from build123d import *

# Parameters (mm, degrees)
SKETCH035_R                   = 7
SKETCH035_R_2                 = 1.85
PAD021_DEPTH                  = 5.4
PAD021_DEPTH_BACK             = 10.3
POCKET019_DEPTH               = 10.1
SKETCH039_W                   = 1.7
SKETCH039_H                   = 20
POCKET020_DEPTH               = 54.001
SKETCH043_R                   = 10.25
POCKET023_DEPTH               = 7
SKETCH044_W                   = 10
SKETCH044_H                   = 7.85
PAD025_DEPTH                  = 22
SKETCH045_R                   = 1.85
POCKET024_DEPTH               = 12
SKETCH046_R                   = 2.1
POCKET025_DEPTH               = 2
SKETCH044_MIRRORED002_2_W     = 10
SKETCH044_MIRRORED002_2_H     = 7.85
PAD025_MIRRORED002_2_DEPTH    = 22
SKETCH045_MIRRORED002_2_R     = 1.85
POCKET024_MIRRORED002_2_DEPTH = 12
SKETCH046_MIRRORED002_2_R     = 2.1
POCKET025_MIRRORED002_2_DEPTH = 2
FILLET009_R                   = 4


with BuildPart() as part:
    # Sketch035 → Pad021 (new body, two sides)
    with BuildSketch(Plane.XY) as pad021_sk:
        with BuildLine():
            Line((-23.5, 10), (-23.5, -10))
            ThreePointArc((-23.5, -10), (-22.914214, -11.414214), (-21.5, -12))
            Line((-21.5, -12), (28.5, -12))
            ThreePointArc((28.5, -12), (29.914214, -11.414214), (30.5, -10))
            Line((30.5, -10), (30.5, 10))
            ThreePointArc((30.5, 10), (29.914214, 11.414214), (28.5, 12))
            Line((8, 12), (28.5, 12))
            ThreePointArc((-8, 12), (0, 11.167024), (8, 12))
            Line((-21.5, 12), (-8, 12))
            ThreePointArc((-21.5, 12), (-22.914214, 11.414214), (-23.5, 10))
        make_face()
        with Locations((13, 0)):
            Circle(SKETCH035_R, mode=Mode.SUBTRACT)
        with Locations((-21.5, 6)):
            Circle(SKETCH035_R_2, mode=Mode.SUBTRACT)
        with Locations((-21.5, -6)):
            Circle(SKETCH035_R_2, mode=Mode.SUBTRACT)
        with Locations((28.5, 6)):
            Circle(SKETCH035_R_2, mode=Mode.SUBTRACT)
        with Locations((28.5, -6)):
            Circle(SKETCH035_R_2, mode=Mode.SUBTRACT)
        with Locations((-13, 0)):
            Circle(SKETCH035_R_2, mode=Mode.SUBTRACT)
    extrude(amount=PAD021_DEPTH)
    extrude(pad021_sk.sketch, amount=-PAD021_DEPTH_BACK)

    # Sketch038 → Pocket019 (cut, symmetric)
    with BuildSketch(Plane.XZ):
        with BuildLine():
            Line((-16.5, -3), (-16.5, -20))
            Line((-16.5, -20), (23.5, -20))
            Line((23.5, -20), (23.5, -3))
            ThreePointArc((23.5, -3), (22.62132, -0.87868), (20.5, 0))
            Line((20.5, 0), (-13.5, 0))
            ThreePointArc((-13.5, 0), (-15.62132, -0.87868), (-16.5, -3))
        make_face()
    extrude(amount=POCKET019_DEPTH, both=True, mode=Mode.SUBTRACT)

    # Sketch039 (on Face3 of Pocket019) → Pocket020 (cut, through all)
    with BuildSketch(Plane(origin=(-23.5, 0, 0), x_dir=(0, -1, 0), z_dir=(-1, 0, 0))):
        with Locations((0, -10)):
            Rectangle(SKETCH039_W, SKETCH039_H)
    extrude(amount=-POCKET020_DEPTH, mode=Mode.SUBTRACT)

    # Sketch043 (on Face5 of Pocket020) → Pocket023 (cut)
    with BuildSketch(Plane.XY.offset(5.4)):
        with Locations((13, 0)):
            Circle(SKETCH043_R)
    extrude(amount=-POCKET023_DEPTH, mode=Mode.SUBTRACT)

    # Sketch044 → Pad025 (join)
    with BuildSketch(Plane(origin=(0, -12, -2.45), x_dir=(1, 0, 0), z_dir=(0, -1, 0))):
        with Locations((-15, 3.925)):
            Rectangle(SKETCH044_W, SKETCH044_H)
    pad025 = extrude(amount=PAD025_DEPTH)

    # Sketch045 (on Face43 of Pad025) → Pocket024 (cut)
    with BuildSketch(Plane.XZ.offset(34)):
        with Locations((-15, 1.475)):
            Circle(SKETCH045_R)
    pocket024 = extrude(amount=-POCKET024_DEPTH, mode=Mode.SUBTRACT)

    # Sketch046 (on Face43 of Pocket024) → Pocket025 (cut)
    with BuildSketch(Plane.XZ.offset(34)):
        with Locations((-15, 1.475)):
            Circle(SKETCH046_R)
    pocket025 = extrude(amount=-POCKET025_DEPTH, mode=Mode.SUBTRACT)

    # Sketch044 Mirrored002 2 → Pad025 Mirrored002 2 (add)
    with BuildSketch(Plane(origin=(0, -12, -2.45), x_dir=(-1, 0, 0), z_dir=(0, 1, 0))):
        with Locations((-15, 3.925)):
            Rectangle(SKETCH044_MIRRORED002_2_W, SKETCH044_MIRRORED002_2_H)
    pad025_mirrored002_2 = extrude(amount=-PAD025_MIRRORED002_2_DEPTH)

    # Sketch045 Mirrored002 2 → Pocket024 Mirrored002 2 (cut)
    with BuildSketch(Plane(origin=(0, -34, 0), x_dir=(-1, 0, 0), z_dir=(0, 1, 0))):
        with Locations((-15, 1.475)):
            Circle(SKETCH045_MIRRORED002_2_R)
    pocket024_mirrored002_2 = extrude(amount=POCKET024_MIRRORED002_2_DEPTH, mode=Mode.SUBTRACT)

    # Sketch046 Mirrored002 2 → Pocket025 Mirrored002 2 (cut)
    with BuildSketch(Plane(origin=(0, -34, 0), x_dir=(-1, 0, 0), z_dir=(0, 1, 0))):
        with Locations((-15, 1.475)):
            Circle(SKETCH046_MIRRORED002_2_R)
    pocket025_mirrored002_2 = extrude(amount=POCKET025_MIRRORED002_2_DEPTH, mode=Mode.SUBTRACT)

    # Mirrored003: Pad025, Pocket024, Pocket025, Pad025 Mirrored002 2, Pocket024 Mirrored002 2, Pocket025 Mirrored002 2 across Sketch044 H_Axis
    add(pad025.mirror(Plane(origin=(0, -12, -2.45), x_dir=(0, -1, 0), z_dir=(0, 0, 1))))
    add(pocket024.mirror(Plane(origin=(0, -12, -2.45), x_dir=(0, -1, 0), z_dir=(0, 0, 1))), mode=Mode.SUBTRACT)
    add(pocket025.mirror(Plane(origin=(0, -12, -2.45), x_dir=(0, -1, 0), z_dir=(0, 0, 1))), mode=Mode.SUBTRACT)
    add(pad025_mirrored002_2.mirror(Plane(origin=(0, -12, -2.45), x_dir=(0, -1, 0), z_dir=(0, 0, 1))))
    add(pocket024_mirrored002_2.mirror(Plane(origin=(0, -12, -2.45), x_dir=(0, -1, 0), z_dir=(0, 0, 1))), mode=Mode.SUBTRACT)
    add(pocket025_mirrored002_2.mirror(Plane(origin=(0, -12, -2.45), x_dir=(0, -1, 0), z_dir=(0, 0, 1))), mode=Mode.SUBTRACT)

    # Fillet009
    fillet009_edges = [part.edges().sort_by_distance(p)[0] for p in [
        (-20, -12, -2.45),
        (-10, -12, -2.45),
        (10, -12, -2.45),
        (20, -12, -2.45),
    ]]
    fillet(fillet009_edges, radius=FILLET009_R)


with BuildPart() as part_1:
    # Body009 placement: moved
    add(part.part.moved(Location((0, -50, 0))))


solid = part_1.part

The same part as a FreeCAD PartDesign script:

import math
import FreeCAD as App
import Part
import Sketcher

V = App.Vector
Q = App.Units.Quantity


def edges_at(feature, points):
    """Names of the edges that pass closest to the given points."""
    edges = feature.Shape.Edges
    near = lambda p: min(range(len(edges)), key=lambda i: edges[i].distToShape(Part.Vertex(*p))[0])
    return sorted({f"Edge{near(p) + 1}" for p in points})


def add_polygon(sketch, points):
    """Adds a closed chain of lines whose ends are joined by coincident constraints."""
    first, n = sketch.GeometryCount, len(points)
    for a, b in zip(points, points[1:] + points[:1]):
        sketch.addGeometry(Part.LineSegment(App.Vector(*a, 0), App.Vector(*b, 0)), False)
    for i in range(n):
        sketch.addConstraint(Sketcher.Constraint("Coincident", first + i, 2, first + (i + 1) % n, 1))

doc = App.newDocument("Part")
params = doc.addObject("Spreadsheet::Sheet", "Params")
for row, (alias, value) in enumerate([
    ("sketch1_diameter", "14 mm"),
    ("sketch1_radius", "1.999999 mm"),
    ("sketch1_diameter2", "3.7 mm"),
    ("sketch1_width", "50 mm"),
    ("sketch1_height", "20 mm"),
    ("pad1_length", "5.4 mm"),
    ("pad1_length2", "10.3 mm"),
    ("sketch2_radius", "3.000001 mm"),
    ("sketch2_width", "40 mm"),
    ("sketch2_height", "17 mm"),
    ("pocket1_length", "20.2 mm"),
    ("sketch3_height", "20 mm"),
    ("sketch3_width", "1.7 mm"),
    ("sketch4_diameter", "20.5 mm"),
    ("pocket3_length", "7 mm"),
    ("sketch5_width", "10 mm"),
    ("sketch5_height", "7.85 mm"),
    ("pad2_length", "22 mm"),
    ("sketch6_diameter", "3.7 mm"),
    ("pocket4_length", "12 mm"),
    ("sketch7_diameter", "4.2 mm"),
    ("pocket5_length", "2 mm"),
    ("sketch8_width", "10 mm"),
    ("sketch8_height", "7.85 mm"),
    ("pad3_length", "22 mm"),
    ("sketch9_diameter", "3.7 mm"),
    ("pocket6_length", "12 mm"),
    ("sketch10_diameter", "4.2 mm"),
    ("pocket7_length", "2 mm"),
    ("fillet_radius", "4 mm"),
], start=1):
    params.set(f"A{row}", alias)
    params.set(f"B{row}", "=" + value)
    params.setAlias(f"B{row}", alias)

body = doc.addObject("PartDesign::Body", "Body")

# Sketch on XY plane
sketch1 = body.newObject("Sketcher::SketchObject", "Sketch")
sketch1.AttachmentSupport = (doc.getObject("XY_Plane"), [""])
sketch1.MapMode = "FlatFace"
sketch1.addGeometry([
    Part.LineSegment(V(-23.5, 10, 0), V(-23.5, -10, 0)),  # 0
    Part.ArcOfCircle(Part.Circle(V(-21.500001, -10.000001, 0), V(0, 0, 1), 1.999999), math.radians(179.999957), math.radians(270.000043)),  # 1
    Part.LineSegment(V(-21.5, -12, 0), V(28.5, -12, 0)),  # 2
    Part.ArcOfCircle(Part.Circle(V(28.500001, -10.000001, 0), V(0, 0, 1), 1.999999), math.radians(-90.000043), math.radians(0.000043)),  # 3
    Part.LineSegment(V(30.5, -10, 0), V(30.5, 10, 0)),  # 4
    Part.ArcOfCircle(Part.Circle(V(28.500001, 10.000001, 0), V(0, 0, 1), 1.999999), math.radians(-0.000043), math.radians(90.000043)),  # 5
    Part.LineSegment(V(28.5, 12, 0), V(8, 12, 0)),  # 6
    Part.ArcOfCircle(Part.Circle(V(0, 49.999985, 0), V(0, 0, 1), 38.832961), math.radians(-101.888663), math.radians(-78.111337)),  # 7
    Part.LineSegment(V(-8, 12, 0), V(-21.5, 12, 0)),  # 8
    Part.ArcOfCircle(Part.Circle(V(-21.500001, 10.000001, 0), V(0, 0, 1), 1.999999), math.radians(89.999957), math.radians(180.000043)),  # 9
    Part.Circle(V(-21.5, -6, 0), V(0, 0, 1), 1.85),  # 10
    Part.Circle(V(28.5, -6, 0), V(0, 0, 1), 1.85),  # 11
    Part.Circle(V(-13, 0, 0), V(0, 0, 1), 1.85),  # 12
    Part.Circle(V(-21.5, 6, 0), V(0, 0, 1), 1.85),  # 13
    Part.Circle(V(13, 0, 0), V(0, 0, 1), 7),  # 14
    Part.Circle(V(28.5, 6, 0), V(0, 0, 1), 1.85),  # 15
], False)
sketch1.addConstraint([
    Sketcher.Constraint("Tangent", 0, 2, 1, 1),
    Sketcher.Constraint("Tangent", 1, 2, 2, 1),
    Sketcher.Constraint("Tangent", 2, 2, 3, 1),
    Sketcher.Constraint("Tangent", 3, 2, 4, 1),
    Sketcher.Constraint("Tangent", 4, 2, 5, 1),
    Sketcher.Constraint("Tangent", 5, 2, 6, 1),
    Sketcher.Constraint("Coincident", 6, 2, 7, 2),
    Sketcher.Constraint("Coincident", 7, 1, 8, 1),
    Sketcher.Constraint("Tangent", 8, 2, 9, 1),
    Sketcher.Constraint("Tangent", 9, 2, 0, 1),
    Sketcher.Constraint("Vertical", 0),
    Sketcher.Constraint("Horizontal", 2),
    Sketcher.Constraint("Vertical", 4),
    Sketcher.Constraint("Horizontal", 6),
    Sketcher.Constraint("Horizontal", 8),
    Sketcher.Constraint("Equal", 1, 3),
    Sketcher.Constraint("Equal", 3, 5),
    Sketcher.Constraint("Equal", 5, 9),
    Sketcher.Constraint("Equal", 10, 11),
    Sketcher.Constraint("Equal", 11, 12),
    Sketcher.Constraint("Equal", 12, 13),
    Sketcher.Constraint("Equal", 13, 15),
    Sketcher.Constraint("Symmetric", 12, 3, 14, 3, -1, 1),
    Sketcher.Constraint("Symmetric", 6, 2, 7, 1, -2),
    Sketcher.Constraint("Symmetric", 10, 3, 13, 3, -1),
    Sketcher.Constraint("Symmetric", 11, 3, 15, 3, -1),
    Sketcher.Constraint("PointOnObject", 12, 3, -1),
    Sketcher.Constraint("Horizontal", 10, 3, 11, 3),
    Sketcher.Constraint("Vertical", 9, 3, 10, 3),
    Sketcher.Constraint("Vertical", 5, 3, 11, 3),
    Sketcher.Constraint("Diameter", 14, Q("14 mm")),
    Sketcher.Constraint("Radius", 1, Q("1.999999 mm")),
    Sketcher.Constraint("Diameter", 10, Q("3.7 mm")),
    Sketcher.Constraint("DistanceX", 2, 1, 2, 2, Q("50 mm")),
    Sketcher.Constraint("DistanceY", 0, 2, 0, 1, Q("20 mm")),
    Sketcher.Constraint("DistanceX", 6, 2, 6, 1, Q("20.5 mm")),
    Sketcher.Constraint("DistanceX", 8, 2, 8, 1, Q("13.5 mm")),
    Sketcher.Constraint("DistanceY", 1, 3, -1, 1, Q("10.000001 mm")),
    Sketcher.Constraint("DistanceY", 10, 3, -1, 1, Q("6 mm")),
    Sketcher.Constraint("DistanceX", 12, 3, -1, 1, Q("13 mm")),
    Sketcher.Constraint("Radius", 7, Q("38.832961 mm")),
])
sketch1.setExpression("Constraints[30]", "Params.sketch1_diameter")
sketch1.setExpression("Constraints[31]", "Params.sketch1_radius")
sketch1.setExpression("Constraints[32]", "Params.sketch1_diameter2")
sketch1.setExpression("Constraints[33]", "Params.sketch1_width")
sketch1.setExpression("Constraints[34]", "Params.sketch1_height")
pad1 = body.newObject("PartDesign::Pad", "Pad")
pad1.Profile = sketch1
pad1.Type = "TwoLengths"
pad1.setExpression("Length", "Params.pad1_length")
pad1.setExpression("Length2", "Params.pad1_length2")

# Sketch on XZ plane
sketch2 = body.newObject("Sketcher::SketchObject", "Sketch001")
sketch2.AttachmentSupport = (doc.getObject("XZ_Plane"), [""])
sketch2.MapMode = "FlatFace"
sketch2.addGeometry([
    Part.LineSegment(V(-16.5, -3, 0), V(-16.5, -20, 0)),  # 0
    Part.LineSegment(V(-16.5, -20, 0), V(23.5, -20, 0)),  # 1
    Part.LineSegment(V(23.5, -20, 0), V(23.5, -3, 0)),  # 2
    Part.ArcOfCircle(Part.Circle(V(20.499999, -3.000001, 0), V(0, 0, 1), 3.000001), math.radians(0.000022), math.radians(89.999978)),  # 3
    Part.LineSegment(V(20.5, 0, 0), V(-13.5, 0, 0)),  # 4
    Part.ArcOfCircle(Part.Circle(V(-13.499999, -3.000001, 0), V(0, 0, 1), 3.000001), math.radians(90.000022), math.radians(179.999978)),  # 5
], False)
sketch2.addConstraint([
    Sketcher.Constraint("Coincident", 0, 2, 1, 1),
    Sketcher.Constraint("Coincident", 1, 2, 2, 1),
    Sketcher.Constraint("Tangent", 2, 2, 3, 1),
    Sketcher.Constraint("Tangent", 3, 2, 4, 1),
    Sketcher.Constraint("Tangent", 4, 2, 5, 1),
    Sketcher.Constraint("Tangent", 5, 2, 0, 1),
    Sketcher.Constraint("Vertical", 0),
    Sketcher.Constraint("Horizontal", 1),
    Sketcher.Constraint("Vertical", 2),
    Sketcher.Constraint("Horizontal", 4),
    Sketcher.Constraint("Equal", 3, 5),
    Sketcher.Constraint("PointOnObject", 3, 2, -1),
    Sketcher.Constraint("Radius", 3, Q("3.000001 mm")),
    Sketcher.Constraint("DistanceX", 1, 1, 1, 2, Q("40 mm")),
    Sketcher.Constraint("DistanceY", 0, 2, 0, 1, Q("17 mm")),
    Sketcher.Constraint("DistanceX", -1, 1, 3, 3, Q("20.499999 mm")),
])
sketch2.setExpression("Constraints[12]", "Params.sketch2_radius")
sketch2.setExpression("Constraints[13]", "Params.sketch2_width")
sketch2.setExpression("Constraints[14]", "Params.sketch2_height")
pocket1 = body.newObject("PartDesign::Pocket", "Pocket")
pocket1.Profile = sketch2
pocket1.setExpression("Length", "Params.pocket1_length")
pocket1.Midplane = True

# Sketch on YZ plane
sketch3 = body.newObject("Sketcher::SketchObject", "Sketch002")
sketch3.AttachmentSupport = (doc.getObject("YZ_Plane"), [""])
sketch3.MapMode = "FlatFace"
sketch3.AttachmentOffset = App.Placement(V(0, 0, -23.5), App.Rotation())
add_polygon(sketch3, [(0.85, 0), (0.85, -20), (-0.85, -20), (-0.85, 0)])  # lines 0-3
sketch3.addConstraint([
    Sketcher.Constraint("Vertical", 0),
    Sketcher.Constraint("Horizontal", 1),
    Sketcher.Constraint("Vertical", 2),
    Sketcher.Constraint("Horizontal", 3),
    Sketcher.Constraint("Symmetric", 2, 2, 3, 2, -1, 1),
    Sketcher.Constraint("DistanceY", 0, 2, 0, 1, Q("20 mm")),
    Sketcher.Constraint("DistanceX", 1, 2, 1, 1, Q("1.7 mm")),
])
sketch3.setExpression("Constraints[9]", "Params.sketch3_height")
sketch3.setExpression("Constraints[10]", "Params.sketch3_width")
pocket2 = body.newObject("PartDesign::Pocket", "Pocket001")
pocket2.Profile = sketch3
pocket2.Type = "ThroughAll"
pocket2.Reversed = True

# Sketch on XY plane
sketch4 = body.newObject("Sketcher::SketchObject", "Sketch003")
sketch4.AttachmentSupport = (doc.getObject("XY_Plane"), [""])
sketch4.MapMode = "FlatFace"
sketch4.AttachmentOffset = App.Placement(V(0, 0, 5.4), App.Rotation())
sketch4.addGeometry(Part.Circle(V(13, 0, 0), V(0, 0, 1), 10.25), False)
sketch4.addConstraint([
    Sketcher.Constraint("PointOnObject", 0, 3, -1),
    Sketcher.Constraint("Diameter", 0, Q("20.5 mm")),
    Sketcher.Constraint("DistanceX", -1, 1, 0, 3, Q("13 mm")),
])
sketch4.setExpression("Constraints[1]", "Params.sketch4_diameter")
pocket3 = body.newObject("PartDesign::Pocket", "Pocket002")
pocket3.Profile = sketch4
pocket3.setExpression("Length", "Params.pocket3_length")

# Sketch on XZ plane
sketch5 = body.newObject("Sketcher::SketchObject", "Sketch004")
sketch5.AttachmentSupport = (doc.getObject("XZ_Plane"), [""])
sketch5.MapMode = "FlatFace"
sketch5.AttachmentOffset = App.Placement(V(0, 0, 12), App.Rotation())
add_polygon(sketch5, [(-20, 5.4), (-20, -2.45), (-10, -2.45), (-10, 5.4)])  # lines 0-3
sketch5.addConstraint([
    Sketcher.Constraint("Vertical", 0),
    Sketcher.Constraint("Horizontal", 1),
    Sketcher.Constraint("Vertical", 2),
    Sketcher.Constraint("Horizontal", 3),
    Sketcher.Constraint("DistanceX", 1, 1, 1, 2, Q("10 mm")),
    Sketcher.Constraint("DistanceX", 0, 2, -1, 1, Q("20 mm")),
    Sketcher.Constraint("DistanceY", 0, 2, 0, 1, Q("7.85 mm")),
    Sketcher.Constraint("DistanceY", -1, 1, 2, 2, Q("5.4 mm")),
])
sketch5.setExpression("Constraints[8]", "Params.sketch5_width")
sketch5.setExpression("Constraints[10]", "Params.sketch5_height")
pad2 = body.newObject("PartDesign::Pad", "Pad001")
pad2.Profile = sketch5
pad2.setExpression("Length", "Params.pad2_length")

# Sketch on XZ plane
sketch6 = body.newObject("Sketcher::SketchObject", "Sketch005")
sketch6.AttachmentSupport = (doc.getObject("XZ_Plane"), [""])
sketch6.MapMode = "FlatFace"
sketch6.AttachmentOffset = App.Placement(V(0, 0, 34), App.Rotation())
sketch6.addGeometry(Part.Circle(V(-15, 1.475, 0), V(0, 0, 1), 1.85), False)
sketch6.addConstraint([
    Sketcher.Constraint("Diameter", 0, Q("3.7 mm")),
    Sketcher.Constraint("DistanceX", 0, 3, -1, 1, Q("15 mm")),
    Sketcher.Constraint("DistanceY", -1, 1, 0, 3, Q("1.475 mm")),
])
sketch6.setExpression("Constraints[0]", "Params.sketch6_diameter")
pocket4 = body.newObject("PartDesign::Pocket", "Pocket003")
pocket4.Profile = sketch6
pocket4.setExpression("Length", "Params.pocket4_length")

# Sketch on XZ plane
sketch7 = body.newObject("Sketcher::SketchObject", "Sketch006")
sketch7.AttachmentSupport = (doc.getObject("XZ_Plane"), [""])
sketch7.MapMode = "FlatFace"
sketch7.AttachmentOffset = App.Placement(V(0, 0, 34), App.Rotation())
sketch7.addGeometry(Part.Circle(V(-15, 1.475, 0), V(0, 0, 1), 2.1), False)
sketch7.addConstraint([
    Sketcher.Constraint("Diameter", 0, Q("4.2 mm")),
    Sketcher.Constraint("DistanceX", 0, 3, -1, 1, Q("15 mm")),
    Sketcher.Constraint("DistanceY", -1, 1, 0, 3, Q("1.475 mm")),
])
sketch7.setExpression("Constraints[0]", "Params.sketch7_diameter")
pocket5 = body.newObject("PartDesign::Pocket", "Pocket004")
pocket5.Profile = sketch7
pocket5.setExpression("Length", "Params.pocket5_length")

# Sketch on XZ plane
sketch8 = body.newObject("Sketcher::SketchObject", "Sketch007")
sketch8.AttachmentSupport = (doc.getObject("XZ_Plane"), [""])
sketch8.MapMode = "FlatFace"
sketch8.AttachmentOffset = App.Placement(V(0, 0, 12), App.Rotation())
add_polygon(sketch8, [(20, 5.4), (20, -2.45), (10, -2.45), (10, 5.4)])  # lines 0-3
sketch8.addConstraint([
    Sketcher.Constraint("Vertical", 0),
    Sketcher.Constraint("Horizontal", 1),
    Sketcher.Constraint("Vertical", 2),
    Sketcher.Constraint("Horizontal", 3),
    Sketcher.Constraint("DistanceX", 1, 2, 1, 1, Q("10 mm")),
    Sketcher.Constraint("DistanceX", -1, 1, 0, 2, Q("20 mm")),
    Sketcher.Constraint("DistanceY", 0, 2, 0, 1, Q("7.85 mm")),
    Sketcher.Constraint("DistanceY", -1, 1, 2, 2, Q("5.4 mm")),
])
sketch8.setExpression("Constraints[8]", "Params.sketch8_width")
sketch8.setExpression("Constraints[10]", "Params.sketch8_height")
pad3 = body.newObject("PartDesign::Pad", "Pad002")
pad3.Profile = sketch8
pad3.setExpression("Length", "Params.pad3_length")

# Sketch on XZ plane
sketch9 = body.newObject("Sketcher::SketchObject", "Sketch008")
sketch9.AttachmentSupport = (doc.getObject("XZ_Plane"), [""])
sketch9.MapMode = "FlatFace"
sketch9.AttachmentOffset = App.Placement(V(0, 0, 34), App.Rotation())
sketch9.addGeometry(Part.Circle(V(15, 1.475, 0), V(0, 0, 1), 1.85), False)
sketch9.addConstraint([
    Sketcher.Constraint("Diameter", 0, Q("3.7 mm")),
    Sketcher.Constraint("DistanceX", -1, 1, 0, 3, Q("15 mm")),
    Sketcher.Constraint("DistanceY", -1, 1, 0, 3, Q("1.475 mm")),
])
sketch9.setExpression("Constraints[0]", "Params.sketch9_diameter")
pocket6 = body.newObject("PartDesign::Pocket", "Pocket005")
pocket6.Profile = sketch9
pocket6.setExpression("Length", "Params.pocket6_length")

# Sketch on XZ plane
sketch10 = body.newObject("Sketcher::SketchObject", "Sketch009")
sketch10.AttachmentSupport = (doc.getObject("XZ_Plane"), [""])
sketch10.MapMode = "FlatFace"
sketch10.AttachmentOffset = App.Placement(V(0, 0, 34), App.Rotation())
sketch10.addGeometry(Part.Circle(V(15, 1.475, 0), V(0, 0, 1), 2.1), False)
sketch10.addConstraint([
    Sketcher.Constraint("Diameter", 0, Q("4.2 mm")),
    Sketcher.Constraint("DistanceX", -1, 1, 0, 3, Q("15 mm")),
    Sketcher.Constraint("DistanceY", -1, 1, 0, 3, Q("1.475 mm")),
])
sketch10.setExpression("Constraints[0]", "Params.sketch10_diameter")
pocket7 = body.newObject("PartDesign::Pocket", "Pocket006")
pocket7.Profile = sketch10
pocket7.setExpression("Length", "Params.pocket7_length")
doc.recompute()

datumplane = body.newObject("PartDesign::Plane", "DatumPlane")
datumplane.AttachmentSupport = (doc.getObject("XY_Plane"), [""])
datumplane.MapMode = "FlatFace"
datumplane.AttachmentOffset = App.Placement(V(0, 0, -2.45), App.Rotation())
mirrored = body.newObject("PartDesign::Mirrored", "Mirrored")
mirrored.Originals = [pad2, pocket4, pocket5, pad3, pocket6, pocket7]
mirrored.MirrorPlane = (datumplane, [""])
body.Tip = mirrored
doc.recompute()

fillet = body.newObject("PartDesign::Fillet", "Fillet")
fillet.Base = (mirrored, edges_at(mirrored, [
    (-20, -12, -2.45),
    (-10, -12, -2.45),
    (10, -12, -2.45),
    (20, -12, -2.45),
]))
fillet.setExpression("Radius", "Params.fillet_radius")
body2 = doc.addObject("PartDesign::Body", "Body001")
doc.recompute()

body.Placement = App.Placement(V(0, -50, 0), App.Rotation(V(0, 0, 1), 0))
boolean = body2.newObject("PartDesign::Boolean", "Boolean")
boolean.Type = "Fuse"
boolean.addObjects([body])

doc.recompute()
